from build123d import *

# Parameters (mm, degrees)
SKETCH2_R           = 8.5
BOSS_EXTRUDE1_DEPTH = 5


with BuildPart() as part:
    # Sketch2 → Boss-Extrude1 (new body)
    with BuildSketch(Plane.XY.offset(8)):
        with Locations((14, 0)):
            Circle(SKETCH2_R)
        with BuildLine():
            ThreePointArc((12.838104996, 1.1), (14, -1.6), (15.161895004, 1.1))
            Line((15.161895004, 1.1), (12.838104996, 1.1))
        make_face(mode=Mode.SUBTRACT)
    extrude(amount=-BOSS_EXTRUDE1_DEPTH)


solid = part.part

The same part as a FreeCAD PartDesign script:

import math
import FreeCAD as App
import Part
import Sketcher

V = App.Vector

doc = App.newDocument("Part")
body = doc.addObject("PartDesign::Body", "Body")

# Sketch on XY plane
sketch1 = body.newObject("Sketcher::SketchObject", "Sketch")
sketch1.AttachmentSupport = (doc.getObject("XY_Plane"), [""])
sketch1.MapMode = "FlatFace"
sketch1.AttachmentOffset = App.Placement(V(0, 0, 8), App.Rotation())
sketch1.addGeometry([
    Part.Circle(V(14, 0, 0), V(0, 0, 1), 8.5),
    Part.ArcOfCircle(Part.Circle(V(14, 0, 0), V(0, 0, 1), 1.6), math.radians(136.567463), math.radians(403.432537)),
    Part.LineSegment(V(12.838105, 1.1, 0), V(15.161895, 1.1, 0)),
], False)
sketch1.addConstraint([
    Sketcher.Constraint("Coincident", 1, 1, 2, 1),
    Sketcher.Constraint("Coincident", 2, 2, 1, 2),
    Sketcher.Constraint("Horizontal", 2),
    Sketcher.Constraint("Coincident", 1, 3, 0, 3),
    Sketcher.Constraint("PointOnObject", 0, 3, -1),
    Sketcher.Constraint("Diameter", 0, 17.0),
    Sketcher.Constraint("Radius", 1, 1.6),
    Sketcher.Constraint("DistanceX", -1, 1, 0, 3, 14.0),
    Sketcher.Constraint("DistanceY", -1, 1, 1, 1, 1.1),
])
pad1 = body.newObject("PartDesign::Pad", "Pad")
pad1.Profile = sketch1
pad1.Length = 5
pad1.Reversed = True

doc.recompute()
